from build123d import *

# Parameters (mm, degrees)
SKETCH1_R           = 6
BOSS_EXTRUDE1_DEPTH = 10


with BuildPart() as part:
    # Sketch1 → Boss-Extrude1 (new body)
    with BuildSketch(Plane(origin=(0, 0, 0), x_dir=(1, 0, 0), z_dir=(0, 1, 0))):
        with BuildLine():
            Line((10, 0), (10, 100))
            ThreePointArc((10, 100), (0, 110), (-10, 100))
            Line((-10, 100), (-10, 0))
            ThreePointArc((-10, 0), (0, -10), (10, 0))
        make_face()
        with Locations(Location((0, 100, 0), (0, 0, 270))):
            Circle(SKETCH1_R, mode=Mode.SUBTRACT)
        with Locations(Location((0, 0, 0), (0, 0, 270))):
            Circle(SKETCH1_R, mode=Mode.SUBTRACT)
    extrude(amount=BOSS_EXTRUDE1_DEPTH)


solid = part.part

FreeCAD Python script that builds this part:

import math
import FreeCAD as App
import Part
import Sketcher

doc = App.newDocument("Part")
body = doc.addObject("PartDesign::Body", "Body")

# Sketch on XZ plane
sketch1 = doc.addObject("Sketcher::SketchObject", "Sketch")
body.addObject(sketch1)
sketch1.AttachmentSupport = (doc.XZ_Plane, [""])
sketch1.MapMode = "FlatFace"
sketch1.addGeometry([
    Part.LineSegment(App.Vector(10, 0, 0), App.Vector(10, -100, 0)),  # 0
    Part.ArcOfCircle(Part.Circle(App.Vector(0, -100, 0), App.Vector(0, 0, 1), 10), math.radians(180), math.radians(360)),  # 1
    Part.LineSegment(App.Vector(-10, -100, 0), App.Vector(-10, 0, 0)),  # 2
    Part.ArcOfCircle(Part.Circle(App.Vector(0, 0, 0), App.Vector(0, 0, 1), 10), math.radians(0), math.radians(180)),  # 3
    Part.Circle(App.Vector(0, 0, 0), App.Vector(0, 0, 1), 6),  # 4
    Part.Circle(App.Vector(0, -100, 0), App.Vector(0, 0, 1), 6),  # 5
], False)
sketch1.addConstraint([
    Sketcher.Constraint("Tangent", 0, 2, 1, 2),
    Sketcher.Constraint("Tangent", 1, 1, 2, 1),
    Sketcher.Constraint("Tangent", 2, 2, 3, 2),
    Sketcher.Constraint("Tangent", 3, 1, 0, 1),
    Sketcher.Constraint("Vertical", 0),
    Sketcher.Constraint("Vertical", 2),
    Sketcher.Constraint("Coincident", 3, 3, -1, 1),
    Sketcher.Constraint("Coincident", 4, 3, -1, 1),
    Sketcher.Constraint("Coincident", 5, 3, 1, 3),
    Sketcher.Constraint("Equal", 4, 5),
    Sketcher.Constraint("Diameter", 4, 12.0),
    Sketcher.Constraint("Radius", 1, 10.0),
    Sketcher.Constraint("DistanceY", 0, 2, 0, 1, 100.0),
])
pad1 = doc.addObject("PartDesign::Pad", "Pad")
body.addObject(pad1)
pad1.Profile = sketch1
pad1.Length = 10
pad1.Reversed = True

doc.recompute()
